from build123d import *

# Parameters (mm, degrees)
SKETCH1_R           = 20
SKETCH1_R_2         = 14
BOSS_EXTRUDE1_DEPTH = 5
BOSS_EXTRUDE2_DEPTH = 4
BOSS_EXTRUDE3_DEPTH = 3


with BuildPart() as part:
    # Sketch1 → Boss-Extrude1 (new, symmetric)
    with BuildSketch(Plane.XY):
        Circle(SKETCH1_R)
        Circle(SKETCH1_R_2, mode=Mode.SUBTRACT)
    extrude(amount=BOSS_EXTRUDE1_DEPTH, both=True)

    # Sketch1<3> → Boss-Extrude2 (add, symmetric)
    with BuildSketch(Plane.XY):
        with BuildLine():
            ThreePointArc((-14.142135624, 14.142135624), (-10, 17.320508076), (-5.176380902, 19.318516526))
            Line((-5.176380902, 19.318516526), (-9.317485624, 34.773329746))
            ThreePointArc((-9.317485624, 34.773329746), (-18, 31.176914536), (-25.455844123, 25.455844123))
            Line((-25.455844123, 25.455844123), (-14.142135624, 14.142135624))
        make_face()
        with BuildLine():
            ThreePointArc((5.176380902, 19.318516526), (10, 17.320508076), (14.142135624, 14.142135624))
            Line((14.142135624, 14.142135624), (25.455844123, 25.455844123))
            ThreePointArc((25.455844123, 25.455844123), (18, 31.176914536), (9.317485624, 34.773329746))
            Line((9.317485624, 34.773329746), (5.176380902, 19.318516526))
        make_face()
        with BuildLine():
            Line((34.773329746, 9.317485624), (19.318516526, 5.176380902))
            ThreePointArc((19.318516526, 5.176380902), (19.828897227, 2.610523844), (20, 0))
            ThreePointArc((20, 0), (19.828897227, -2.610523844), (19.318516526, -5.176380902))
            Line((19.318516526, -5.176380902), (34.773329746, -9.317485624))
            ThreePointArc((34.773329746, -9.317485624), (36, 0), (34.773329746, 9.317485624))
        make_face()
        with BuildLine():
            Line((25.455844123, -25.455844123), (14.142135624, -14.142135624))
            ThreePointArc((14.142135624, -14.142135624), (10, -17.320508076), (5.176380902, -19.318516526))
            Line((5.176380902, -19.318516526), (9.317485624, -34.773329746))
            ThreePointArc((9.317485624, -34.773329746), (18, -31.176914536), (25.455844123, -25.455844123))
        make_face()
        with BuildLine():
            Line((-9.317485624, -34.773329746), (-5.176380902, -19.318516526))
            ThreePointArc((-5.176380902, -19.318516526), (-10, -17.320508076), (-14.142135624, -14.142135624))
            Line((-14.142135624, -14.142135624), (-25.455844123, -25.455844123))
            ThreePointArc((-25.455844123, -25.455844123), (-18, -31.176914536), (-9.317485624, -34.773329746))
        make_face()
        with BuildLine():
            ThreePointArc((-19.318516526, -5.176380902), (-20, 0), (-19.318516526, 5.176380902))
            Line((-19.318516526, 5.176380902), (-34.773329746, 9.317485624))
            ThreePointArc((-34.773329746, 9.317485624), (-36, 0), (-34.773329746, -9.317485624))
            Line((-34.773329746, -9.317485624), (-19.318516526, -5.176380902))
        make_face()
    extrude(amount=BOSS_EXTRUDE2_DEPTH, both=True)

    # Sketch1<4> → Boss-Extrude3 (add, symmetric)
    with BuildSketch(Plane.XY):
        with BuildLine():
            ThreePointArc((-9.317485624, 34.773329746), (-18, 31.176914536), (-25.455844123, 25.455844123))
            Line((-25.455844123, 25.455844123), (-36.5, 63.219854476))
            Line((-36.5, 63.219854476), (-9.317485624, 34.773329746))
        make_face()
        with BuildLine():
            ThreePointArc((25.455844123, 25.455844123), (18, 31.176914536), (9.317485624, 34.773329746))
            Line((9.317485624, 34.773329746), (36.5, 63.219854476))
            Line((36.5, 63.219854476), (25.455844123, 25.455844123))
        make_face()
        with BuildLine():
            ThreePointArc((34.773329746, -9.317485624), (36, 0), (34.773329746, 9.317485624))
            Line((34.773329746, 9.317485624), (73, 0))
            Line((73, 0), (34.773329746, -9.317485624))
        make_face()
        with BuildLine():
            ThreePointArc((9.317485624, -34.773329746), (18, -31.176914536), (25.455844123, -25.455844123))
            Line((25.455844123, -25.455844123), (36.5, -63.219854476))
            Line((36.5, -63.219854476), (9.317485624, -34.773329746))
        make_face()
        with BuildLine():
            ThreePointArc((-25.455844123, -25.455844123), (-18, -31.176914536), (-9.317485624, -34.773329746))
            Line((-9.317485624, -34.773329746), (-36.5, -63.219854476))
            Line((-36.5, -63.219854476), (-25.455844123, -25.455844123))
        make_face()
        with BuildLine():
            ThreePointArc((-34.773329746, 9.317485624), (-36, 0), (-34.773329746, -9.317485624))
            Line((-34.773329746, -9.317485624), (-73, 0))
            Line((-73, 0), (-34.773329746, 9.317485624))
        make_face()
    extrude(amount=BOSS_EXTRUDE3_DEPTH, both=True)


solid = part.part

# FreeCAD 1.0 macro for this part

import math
import FreeCAD as App
import Part
import Sketcher
Q = App.Units.Quantity

doc = App.newDocument("Part")
body = doc.addObject("PartDesign::Body", "Body")

# Sketch on XY plane
sketch1 = body.newObject("Sketcher::SketchObject", "Sketch")
sketch1.AttachmentSupport = (doc.getObject("XY_Plane"), [""])
sketch1.MapMode = "FlatFace"
sketch1.addGeometry([
    Part.Circle(App.Vector(0, 0, 0), App.Vector(0, 0, 1), 20),
    Part.Circle(App.Vector(0, 0, 0), App.Vector(0, 0, 1), 14),
], False)
sketch1.addConstraint([
    Sketcher.Constraint("Coincident", 0, 3, -1, 1),
    Sketcher.Constraint("Coincident", 1, 3, -1, 1),
    Sketcher.Constraint("Diameter", 0, 40.0),
    Sketcher.Constraint("Diameter", 1, 28.0),
])
pad1 = body.newObject("PartDesign::Pad", "Pad")
pad1.Profile = sketch1
pad1.Length = 10
pad1.Midplane = True

# Sketch on XY plane
sketch2 = body.newObject("Sketcher::SketchObject", "Sketch001")
sketch2.AttachmentSupport = (doc.getObject("XY_Plane"), [""])
sketch2.MapMode = "FlatFace"
sketch2.addGeometry([
    Part.ArcOfCircle(Part.Circle(App.Vector(0, 0, 0), App.Vector(0, 0, 1), 20), math.radians(105), math.radians(135)),  # 0
    Part.LineSegment(App.Vector(-5, 19, 0), App.Vector(-9, 35, 0)),  # 1
    Part.ArcOfCircle(Part.Circle(App.Vector(0, 0, 0), App.Vector(0, 0, 1), 36), math.radians(105), math.radians(135)),  # 2
    Part.LineSegment(App.Vector(-25, 25, 0), App.Vector(-14, 14, 0)),  # 3
    Part.ArcOfCircle(Part.Circle(App.Vector(0, 0, 0), App.Vector(0, 0, 1), 20), math.radians(45), math.radians(75)),  # 4
    Part.LineSegment(App.Vector(14, 14, 0), App.Vector(25, 25, 0)),  # 5
    Part.ArcOfCircle(Part.Circle(App.Vector(0, 0, 0), App.Vector(0, 0, 1), 36), math.radians(45), math.radians(75)),  # 6
    Part.LineSegment(App.Vector(9, 35, 0), App.Vector(5, 19, 0)),  # 7
    Part.LineSegment(App.Vector(35, 9, 0), App.Vector(19, 5, 0)),  # 8
    Part.ArcOfCircle(Part.Circle(App.Vector(0, 0, 0), App.Vector(0, 0, 1), 20), math.radians(0), math.radians(15)),  # 9
    Part.ArcOfCircle(Part.Circle(App.Vector(0, 0, 0), App.Vector(0, 0, 1), 20), math.radians(-15), math.radians(0)),  # 10
    Part.LineSegment(App.Vector(19, -5, 0), App.Vector(35, -9, 0)),  # 11
    Part.ArcOfCircle(Part.Circle(App.Vector(0, 0, 0), App.Vector(0, 0, 1), 36), math.radians(-15), math.radians(15)),  # 12
    Part.LineSegment(App.Vector(25, -25, 0), App.Vector(14, -14, 0)),  # 13
    Part.ArcOfCircle(Part.Circle(App.Vector(0, 0, 0), App.Vector(0, 0, 1), 20), math.radians(-75), math.radians(-45)),  # 14
    Part.LineSegment(App.Vector(5, -19, 0), App.Vector(9, -35, 0)),  # 15
    Part.ArcOfCircle(Part.Circle(App.Vector(0, 0, 0), App.Vector(0, 0, 1), 36), math.radians(-75), math.radians(-45)),  # 16
    Part.LineSegment(App.Vector(-9, -35, 0), App.Vector(-5, -19, 0)),  # 17
    Part.ArcOfCircle(Part.Circle(App.Vector(0, 0, 0), App.Vector(0, 0, 1), 20), math.radians(-135), math.radians(-105)),  # 18
    Part.LineSegment(App.Vector(-14, -14, 0), App.Vector(-25, -25, 0)),  # 19
    Part.ArcOfCircle(Part.Circle(App.Vector(0, 0, 0), App.Vector(0, 0, 1), 36), math.radians(-135), math.radians(-105)),  # 20
    Part.ArcOfCircle(Part.Circle(App.Vector(0, 0, 0), App.Vector(0, 0, 1), 20), math.radians(165), math.radians(195)),  # 21
    Part.LineSegment(App.Vector(-19, 5, 0), App.Vector(-35, 9, 0)),  # 22
    Part.ArcOfCircle(Part.Circle(App.Vector(0, 0, 0), App.Vector(0, 0, 1), 36), math.radians(165), math.radians(195)),  # 23
    Part.LineSegment(App.Vector(-35, -9, 0), App.Vector(-19, -5, 0)),  # 24
], False)
sketch2.addConstraint([
    Sketcher.Constraint("Coincident", 0, 1, 1, 1),
    Sketcher.Constraint("Coincident", 1, 2, 2, 1),
    Sketcher.Constraint("Coincident", 2, 2, 3, 1),
    Sketcher.Constraint("Coincident", 3, 2, 0, 2),
    Sketcher.Constraint("Coincident", 4, 1, 5, 1),
    Sketcher.Constraint("Coincident", 5, 2, 6, 1),
    Sketcher.Constraint("Coincident", 6, 2, 7, 1),
    Sketcher.Constraint("Coincident", 7, 2, 4, 2),
    Sketcher.Constraint("Coincident", 8, 2, 9, 2),
    Sketcher.Constraint("Tangent", 9, 1, 10, 2),
    Sketcher.Constraint("Coincident", 10, 1, 11, 1),
    Sketcher.Constraint("Coincident", 11, 2, 12, 1),
    Sketcher.Constraint("Coincident", 12, 2, 8, 1),
    Sketcher.Constraint("Coincident", 13, 2, 14, 2),
    Sketcher.Constraint("Coincident", 14, 1, 15, 1),
    Sketcher.Constraint("Coincident", 15, 2, 16, 1),
    Sketcher.Constraint("Coincident", 16, 2, 13, 1),
    Sketcher.Constraint("Coincident", 17, 2, 18, 2),
    Sketcher.Constraint("Coincident", 18, 1, 19, 1),
    Sketcher.Constraint("Coincident", 19, 2, 20, 1),
    Sketcher.Constraint("Coincident", 20, 2, 17, 1),
    Sketcher.Constraint("Coincident", 21, 1, 22, 1),
    Sketcher.Constraint("Coincident", 22, 2, 23, 1),
    Sketcher.Constraint("Coincident", 23, 2, 24, 1),
    Sketcher.Constraint("Coincident", 24, 2, 21, 2),
    Sketcher.Constraint("Coincident", 0, 3, -1, 1),
    Sketcher.Constraint("Coincident", 2, 3, -1, 1),
    Sketcher.Constraint("Coincident", 4, 3, -1, 1),
    Sketcher.Constraint("Coincident", 6, 3, -1, 1),
    Sketcher.Constraint("Coincident", 9, 3, -1, 1),
    Sketcher.Constraint("Coincident", 12, 3, -1, 1),
    Sketcher.Constraint("Coincident", 14, 3, -1, 1),
    Sketcher.Constraint("Coincident", 16, 3, -1, 1),
    Sketcher.Constraint("Coincident", 18, 3, -1, 1),
    Sketcher.Constraint("Coincident", 20, 3, -1, 1),
    Sketcher.Constraint("Coincident", 21, 3, -1, 1),
    Sketcher.Constraint("Coincident", 23, 3, -1, 1),
    Sketcher.Constraint("Equal", 0, 4),
    Sketcher.Constraint("Equal", 2, 6),
    Sketcher.Constraint("Equal", 4, 9),
    Sketcher.Constraint("Equal", 9, 10),
    Sketcher.Constraint("Equal", 6, 12),
    Sketcher.Constraint("Equal", 10, 14),
    Sketcher.Constraint("Equal", 12, 16),
    Sketcher.Constraint("Equal", 14, 18),
    Sketcher.Constraint("Equal", 16, 20),
    Sketcher.Constraint("Equal", 18, 21),
    Sketcher.Constraint("Equal", 20, 23),
    Sketcher.Constraint("PointOnObject", 9, 1, -1),
    Sketcher.Constraint("Perpendicular", 3, 5),
    Sketcher.Constraint("Perpendicular", 1, 8),
    Sketcher.Constraint("Perpendicular", 7, 11),
    Sketcher.Constraint("Perpendicular", 5, 13),
    Sketcher.Constraint("Perpendicular", 8, 15),
    Sketcher.Constraint("Perpendicular", 11, 17),
    Sketcher.Constraint("Perpendicular", 13, 19),
    Sketcher.Constraint("Perpendicular", 17, 22),
    Sketcher.Constraint("Perpendicular", 15, 24),
    Sketcher.Constraint("Horizontal", 3, 2, 4, 1),
    Sketcher.Constraint("Horizontal", 2, 2, 5, 2),
    Sketcher.Constraint("Horizontal", 1, 2, 6, 2),
    Sketcher.Constraint("Horizontal", 0, 1, 7, 2),
    Sketcher.Constraint("Horizontal", 14, 1, 17, 2),
    Sketcher.Constraint("Horizontal", 13, 2, 18, 1),
    Sketcher.Constraint("Horizontal", 8, 2, 21, 1),
    Sketcher.Constraint("Horizontal", 11, 2, 23, 2),
    Sketcher.Constraint("Vertical", 8, 2, 10, 1),
    Sketcher.Constraint("Vertical", 4, 1, 13, 2),
    Sketcher.Constraint("Vertical", 7, 2, 14, 1),
    Sketcher.Constraint("Radius", 0, 20.0),
    Sketcher.Constraint("Radius", 2, 36.0),
    Sketcher.Constraint("Angle", 1, Q("105 deg")),
    Sketcher.Constraint("DistanceX", 0, 1, -1, 1, 5.176381),
    Sketcher.Constraint("DistanceY", -1, 1, 8, 2, 5.176381),
    Sketcher.Constraint("DistanceX", 2, 2, 1, 2, 16.138358),
])
pad2 = body.newObject("PartDesign::Pad", "Pad001")
pad2.Profile = sketch2
pad2.Length = 8
pad2.Midplane = True

# Sketch on XY plane
sketch3 = body.newObject("Sketcher::SketchObject", "Sketch002")
sketch3.AttachmentSupport = (doc.getObject("XY_Plane"), [""])
sketch3.MapMode = "FlatFace"
sketch3.addGeometry([
    Part.ArcOfCircle(Part.Circle(App.Vector(0, 0, 0), App.Vector(0, 0, 1), 36), math.radians(105), math.radians(135)),  # 0
    Part.LineSegment(App.Vector(-9, 35, 0), App.Vector(-36, 63, 0)),  # 1
    Part.LineSegment(App.Vector(-36, 63, 0), App.Vector(-25, 25, 0)),  # 2
    Part.ArcOfCircle(Part.Circle(App.Vector(0, 0, 0), App.Vector(0, 0, 1), 36), math.radians(45), math.radians(75)),  # 3
    Part.LineSegment(App.Vector(25, 25, 0), App.Vector(36, 63, 0)),  # 4
    Part.LineSegment(App.Vector(36, 63, 0), App.Vector(9, 35, 0)),  # 5
    Part.ArcOfCircle(Part.Circle(App.Vector(0, 0, 0), App.Vector(0, 0, 1), 36), math.radians(-15), math.radians(15)),  # 6
    Part.LineSegment(App.Vector(35, -9, 0), App.Vector(73, 0, 0)),  # 7
    Part.LineSegment(App.Vector(73, 0, 0), App.Vector(35, 9, 0)),  # 8
    Part.ArcOfCircle(Part.Circle(App.Vector(0, 0, 0), App.Vector(0, 0, 1), 36), math.radians(-75), math.radians(-45)),  # 9
    Part.LineSegment(App.Vector(9, -35, 0), App.Vector(36, -63, 0)),  # 10
    Part.LineSegment(App.Vector(36, -63, 0), App.Vector(25, -25, 0)),  # 11
    Part.ArcOfCircle(Part.Circle(App.Vector(0, 0, 0), App.Vector(0, 0, 1), 36), math.radians(-135), math.radians(-105)),  # 12
    Part.LineSegment(App.Vector(-25, -25, 0), App.Vector(-36, -63, 0)),  # 13
    Part.LineSegment(App.Vector(-36, -63, 0), App.Vector(-9, -35, 0)),  # 14
    Part.ArcOfCircle(Part.Circle(App.Vector(0, 0, 0), App.Vector(0, 0, 1), 36), math.radians(165), math.radians(195)),  # 15
    Part.LineSegment(App.Vector(-35, 9, 0), App.Vector(-73, 0, 0)),  # 16
    Part.LineSegment(App.Vector(-73, 0, 0), App.Vector(-35, -9, 0)),  # 17
], False)
sketch3.addConstraint([
    Sketcher.Constraint("Coincident", 0, 1, 1, 1),
    Sketcher.Constraint("Coincident", 1, 2, 2, 1),
    Sketcher.Constraint("Coincident", 2, 2, 0, 2),
    Sketcher.Constraint("Coincident", 3, 1, 4, 1),
    Sketcher.Constraint("Coincident", 4, 2, 5, 1),
    Sketcher.Constraint("Coincident", 5, 2, 3, 2),
    Sketcher.Constraint("Coincident", 6, 1, 7, 1),
    Sketcher.Constraint("Coincident", 7, 2, 8, 1),
    Sketcher.Constraint("Coincident", 8, 2, 6, 2),
    Sketcher.Constraint("Coincident", 9, 1, 10, 1),
    Sketcher.Constraint("Coincident", 10, 2, 11, 1),
    Sketcher.Constraint("Coincident", 11, 2, 9, 2),
    Sketcher.Constraint("Coincident", 12, 1, 13, 1),
    Sketcher.Constraint("Coincident", 13, 2, 14, 1),
    Sketcher.Constraint("Coincident", 14, 2, 12, 2),
    Sketcher.Constraint("Coincident", 15, 1, 16, 1),
    Sketcher.Constraint("Coincident", 16, 2, 17, 1),
    Sketcher.Constraint("Coincident", 17, 2, 15, 2),
    Sketcher.Constraint("Coincident", 0, 3, -1, 1),
    Sketcher.Constraint("Coincident", 3, 3, -1, 1),
    Sketcher.Constraint("Coincident", 6, 3, -1, 1),
    Sketcher.Constraint("Coincident", 9, 3, -1, 1),
    Sketcher.Constraint("Coincident", 12, 3, -1, 1),
    Sketcher.Constraint("Coincident", 15, 3, -1, 1),
    Sketcher.Constraint("Equal", 0, 3),
    Sketcher.Constraint("Equal", 3, 6),
    Sketcher.Constraint("Equal", 6, 9),
    Sketcher.Constraint("Equal", 9, 12),
    Sketcher.Constraint("Equal", 12, 15),
    Sketcher.Constraint("Symmetric", 1, 2, 10, 2, -1, 1),
    Sketcher.Constraint("Symmetric", 4, 2, 13, 2, -1, 1),
    Sketcher.Constraint("Symmetric", 7, 2, 16, 2, -1, 1),
    Sketcher.Constraint("Symmetric", 1, 2, 4, 2, -2),
    Sketcher.Constraint("PointOnObject", 7, 2, -1),
    Sketcher.Constraint("Parallel", 1, 10),
    Sketcher.Constraint("Parallel", 2, 11),
    Sketcher.Constraint("Parallel", 4, 13),
    Sketcher.Constraint("Parallel", 5, 14),
    Sketcher.Constraint("Parallel", 7, 16),
    Sketcher.Constraint("Parallel", 8, 17),
    Sketcher.Constraint("Horizontal", 2, 2, 3, 1),
    Sketcher.Constraint("Horizontal", 0, 1, 5, 2),
    Sketcher.Constraint("Horizontal", 8, 2, 15, 1),
    Sketcher.Constraint("Equal", 1, 2),
    Sketcher.Constraint("Equal", 5, 7),
    Sketcher.Constraint("Radius", 0, 36.0),
    Sketcher.Constraint("DistanceX", -1, 1, 7, 2, 73.0),
    Sketcher.Constraint("DistanceX", 1, 2, -1, 1, 36.5),
    Sketcher.Constraint("DistanceY", -1, 1, 0, 1, 34.77333),
    Sketcher.Constraint("DistanceX", -1, 1, 6, 1, 34.77333),
])
pad3 = body.newObject("PartDesign::Pad", "Pad002")
pad3.Profile = sketch3
pad3.Length = 6
pad3.Midplane = True

doc.recompute()
